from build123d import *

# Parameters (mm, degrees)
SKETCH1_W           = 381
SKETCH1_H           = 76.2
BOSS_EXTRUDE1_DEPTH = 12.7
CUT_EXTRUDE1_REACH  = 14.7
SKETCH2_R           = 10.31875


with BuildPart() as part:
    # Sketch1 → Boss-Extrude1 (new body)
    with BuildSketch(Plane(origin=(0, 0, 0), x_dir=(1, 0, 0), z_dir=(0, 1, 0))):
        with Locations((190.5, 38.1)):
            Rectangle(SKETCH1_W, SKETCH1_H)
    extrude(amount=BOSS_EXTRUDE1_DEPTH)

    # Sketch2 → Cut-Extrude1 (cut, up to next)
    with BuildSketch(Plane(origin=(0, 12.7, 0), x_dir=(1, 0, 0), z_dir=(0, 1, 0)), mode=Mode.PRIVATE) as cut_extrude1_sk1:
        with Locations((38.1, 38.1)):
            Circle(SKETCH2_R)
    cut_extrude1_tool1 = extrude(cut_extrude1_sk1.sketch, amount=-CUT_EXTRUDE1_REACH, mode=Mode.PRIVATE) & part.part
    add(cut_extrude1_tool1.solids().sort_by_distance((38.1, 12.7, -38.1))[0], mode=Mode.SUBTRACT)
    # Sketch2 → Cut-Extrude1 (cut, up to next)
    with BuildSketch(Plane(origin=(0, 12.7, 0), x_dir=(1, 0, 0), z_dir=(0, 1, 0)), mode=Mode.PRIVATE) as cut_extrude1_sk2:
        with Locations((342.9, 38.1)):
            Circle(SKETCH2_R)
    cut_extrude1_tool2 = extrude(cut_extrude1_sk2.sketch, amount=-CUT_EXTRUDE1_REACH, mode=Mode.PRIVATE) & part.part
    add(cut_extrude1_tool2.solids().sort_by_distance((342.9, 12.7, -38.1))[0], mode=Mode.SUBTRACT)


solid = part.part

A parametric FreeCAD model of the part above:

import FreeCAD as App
import Part
import Sketcher
from FreeCAD import Vector
Q = App.Units.Quantity


def add_polygon(sketch, points):
    """Adds a closed chain of lines whose ends are joined by coincident constraints."""
    first, n = sketch.GeometryCount, len(points)
    for a, b in zip(points, points[1:] + points[:1]):
        sketch.addGeometry(Part.LineSegment(App.Vector(*a, 0), App.Vector(*b, 0)), False)
    for i in range(n):
        sketch.addConstraint(Sketcher.Constraint("Coincident", first + i, 2, first + (i + 1) % n, 1))

doc = App.newDocument("Part")
body = doc.addObject("PartDesign::Body", "Body")

sketch1 = body.newObject("Sketcher::SketchObject", "Sketch")
sketch1.AttachmentSupport = (doc.getObject("XZ_Plane"), [""])
sketch1.MapMode = "FlatFace"
add_polygon(sketch1, [(0, -76.2), (0, 0), (381, 0), (381, -76.2)])
sketch1.addConstraint([
    Sketcher.Constraint("Vertical", 0),
    Sketcher.Constraint("Horizontal", 1),
    Sketcher.Constraint("Vertical", 2),
    Sketcher.Constraint("Horizontal", 3),
    Sketcher.Constraint("Coincident", 0, 2, -1, 1),
    Sketcher.Constraint("DistanceX", 1, 1, 1, 2, Q("15 in")),
    Sketcher.Constraint("DistanceY", 0, 1, 0, 2, Q("3 in")),
])
pad1 = body.newObject("PartDesign::Pad", "Pad")
pad1.Profile = sketch1
pad1.Length = Q("0.5 in")
pad1.Reversed = True

sketch2 = body.newObject("Sketcher::SketchObject", "Sketch001")
sketch2.AttachmentSupport = (doc.getObject("XZ_Plane"), [""])
sketch2.MapMode = "FlatFace"
sketch2.AttachmentOffset = App.Placement(Vector(0, 0, -0.5 * 25.4), App.Rotation())
sketch2.addGeometry(Part.Circle(Vector(38.1, -38.1, 0), Vector(0, 0, 1), 10.31875), False)
sketch2.addConstraint([
    Sketcher.Constraint("Diameter", 0, Q("0.8125 in")),
    Sketcher.Constraint("DistanceX", -1, 1, 0, 3, Q("1.5 in")),
    Sketcher.Constraint("DistanceY", 0, 3, -1, 1, Q("1.5 in")),
])
pocket1 = body.newObject("PartDesign::Pocket", "Pocket")
pocket1.Profile = sketch2
pocket1.Type = "UpToFirst"
pocket1.Reversed = True

sketch3 = body.newObject("Sketcher::SketchObject", "Sketch002")
sketch3.AttachmentSupport = (doc.getObject("XZ_Plane"), [""])
sketch3.MapMode = "FlatFace"
sketch3.AttachmentOffset = App.Placement(Vector(0, 0, -0.5 * 25.4), App.Rotation())
sketch3.addGeometry(Part.Circle(Vector(342.9, -38.1, 0), Vector(0, 0, 1), 10.31875), False)
sketch3.addConstraint([
    Sketcher.Constraint("Diameter", 0, Q("0.8125 in")),
    Sketcher.Constraint("DistanceX", -1, 1, 0, 3, Q("13.5 in")),
    Sketcher.Constraint("DistanceY", 0, 3, -1, 1, Q("1.5 in")),
])
pocket2 = body.newObject("PartDesign::Pocket", "Pocket001")
pocket2.Profile = sketch3
pocket2.Type = "UpToFirst"
pocket2.Reversed = True

doc.recompute()
